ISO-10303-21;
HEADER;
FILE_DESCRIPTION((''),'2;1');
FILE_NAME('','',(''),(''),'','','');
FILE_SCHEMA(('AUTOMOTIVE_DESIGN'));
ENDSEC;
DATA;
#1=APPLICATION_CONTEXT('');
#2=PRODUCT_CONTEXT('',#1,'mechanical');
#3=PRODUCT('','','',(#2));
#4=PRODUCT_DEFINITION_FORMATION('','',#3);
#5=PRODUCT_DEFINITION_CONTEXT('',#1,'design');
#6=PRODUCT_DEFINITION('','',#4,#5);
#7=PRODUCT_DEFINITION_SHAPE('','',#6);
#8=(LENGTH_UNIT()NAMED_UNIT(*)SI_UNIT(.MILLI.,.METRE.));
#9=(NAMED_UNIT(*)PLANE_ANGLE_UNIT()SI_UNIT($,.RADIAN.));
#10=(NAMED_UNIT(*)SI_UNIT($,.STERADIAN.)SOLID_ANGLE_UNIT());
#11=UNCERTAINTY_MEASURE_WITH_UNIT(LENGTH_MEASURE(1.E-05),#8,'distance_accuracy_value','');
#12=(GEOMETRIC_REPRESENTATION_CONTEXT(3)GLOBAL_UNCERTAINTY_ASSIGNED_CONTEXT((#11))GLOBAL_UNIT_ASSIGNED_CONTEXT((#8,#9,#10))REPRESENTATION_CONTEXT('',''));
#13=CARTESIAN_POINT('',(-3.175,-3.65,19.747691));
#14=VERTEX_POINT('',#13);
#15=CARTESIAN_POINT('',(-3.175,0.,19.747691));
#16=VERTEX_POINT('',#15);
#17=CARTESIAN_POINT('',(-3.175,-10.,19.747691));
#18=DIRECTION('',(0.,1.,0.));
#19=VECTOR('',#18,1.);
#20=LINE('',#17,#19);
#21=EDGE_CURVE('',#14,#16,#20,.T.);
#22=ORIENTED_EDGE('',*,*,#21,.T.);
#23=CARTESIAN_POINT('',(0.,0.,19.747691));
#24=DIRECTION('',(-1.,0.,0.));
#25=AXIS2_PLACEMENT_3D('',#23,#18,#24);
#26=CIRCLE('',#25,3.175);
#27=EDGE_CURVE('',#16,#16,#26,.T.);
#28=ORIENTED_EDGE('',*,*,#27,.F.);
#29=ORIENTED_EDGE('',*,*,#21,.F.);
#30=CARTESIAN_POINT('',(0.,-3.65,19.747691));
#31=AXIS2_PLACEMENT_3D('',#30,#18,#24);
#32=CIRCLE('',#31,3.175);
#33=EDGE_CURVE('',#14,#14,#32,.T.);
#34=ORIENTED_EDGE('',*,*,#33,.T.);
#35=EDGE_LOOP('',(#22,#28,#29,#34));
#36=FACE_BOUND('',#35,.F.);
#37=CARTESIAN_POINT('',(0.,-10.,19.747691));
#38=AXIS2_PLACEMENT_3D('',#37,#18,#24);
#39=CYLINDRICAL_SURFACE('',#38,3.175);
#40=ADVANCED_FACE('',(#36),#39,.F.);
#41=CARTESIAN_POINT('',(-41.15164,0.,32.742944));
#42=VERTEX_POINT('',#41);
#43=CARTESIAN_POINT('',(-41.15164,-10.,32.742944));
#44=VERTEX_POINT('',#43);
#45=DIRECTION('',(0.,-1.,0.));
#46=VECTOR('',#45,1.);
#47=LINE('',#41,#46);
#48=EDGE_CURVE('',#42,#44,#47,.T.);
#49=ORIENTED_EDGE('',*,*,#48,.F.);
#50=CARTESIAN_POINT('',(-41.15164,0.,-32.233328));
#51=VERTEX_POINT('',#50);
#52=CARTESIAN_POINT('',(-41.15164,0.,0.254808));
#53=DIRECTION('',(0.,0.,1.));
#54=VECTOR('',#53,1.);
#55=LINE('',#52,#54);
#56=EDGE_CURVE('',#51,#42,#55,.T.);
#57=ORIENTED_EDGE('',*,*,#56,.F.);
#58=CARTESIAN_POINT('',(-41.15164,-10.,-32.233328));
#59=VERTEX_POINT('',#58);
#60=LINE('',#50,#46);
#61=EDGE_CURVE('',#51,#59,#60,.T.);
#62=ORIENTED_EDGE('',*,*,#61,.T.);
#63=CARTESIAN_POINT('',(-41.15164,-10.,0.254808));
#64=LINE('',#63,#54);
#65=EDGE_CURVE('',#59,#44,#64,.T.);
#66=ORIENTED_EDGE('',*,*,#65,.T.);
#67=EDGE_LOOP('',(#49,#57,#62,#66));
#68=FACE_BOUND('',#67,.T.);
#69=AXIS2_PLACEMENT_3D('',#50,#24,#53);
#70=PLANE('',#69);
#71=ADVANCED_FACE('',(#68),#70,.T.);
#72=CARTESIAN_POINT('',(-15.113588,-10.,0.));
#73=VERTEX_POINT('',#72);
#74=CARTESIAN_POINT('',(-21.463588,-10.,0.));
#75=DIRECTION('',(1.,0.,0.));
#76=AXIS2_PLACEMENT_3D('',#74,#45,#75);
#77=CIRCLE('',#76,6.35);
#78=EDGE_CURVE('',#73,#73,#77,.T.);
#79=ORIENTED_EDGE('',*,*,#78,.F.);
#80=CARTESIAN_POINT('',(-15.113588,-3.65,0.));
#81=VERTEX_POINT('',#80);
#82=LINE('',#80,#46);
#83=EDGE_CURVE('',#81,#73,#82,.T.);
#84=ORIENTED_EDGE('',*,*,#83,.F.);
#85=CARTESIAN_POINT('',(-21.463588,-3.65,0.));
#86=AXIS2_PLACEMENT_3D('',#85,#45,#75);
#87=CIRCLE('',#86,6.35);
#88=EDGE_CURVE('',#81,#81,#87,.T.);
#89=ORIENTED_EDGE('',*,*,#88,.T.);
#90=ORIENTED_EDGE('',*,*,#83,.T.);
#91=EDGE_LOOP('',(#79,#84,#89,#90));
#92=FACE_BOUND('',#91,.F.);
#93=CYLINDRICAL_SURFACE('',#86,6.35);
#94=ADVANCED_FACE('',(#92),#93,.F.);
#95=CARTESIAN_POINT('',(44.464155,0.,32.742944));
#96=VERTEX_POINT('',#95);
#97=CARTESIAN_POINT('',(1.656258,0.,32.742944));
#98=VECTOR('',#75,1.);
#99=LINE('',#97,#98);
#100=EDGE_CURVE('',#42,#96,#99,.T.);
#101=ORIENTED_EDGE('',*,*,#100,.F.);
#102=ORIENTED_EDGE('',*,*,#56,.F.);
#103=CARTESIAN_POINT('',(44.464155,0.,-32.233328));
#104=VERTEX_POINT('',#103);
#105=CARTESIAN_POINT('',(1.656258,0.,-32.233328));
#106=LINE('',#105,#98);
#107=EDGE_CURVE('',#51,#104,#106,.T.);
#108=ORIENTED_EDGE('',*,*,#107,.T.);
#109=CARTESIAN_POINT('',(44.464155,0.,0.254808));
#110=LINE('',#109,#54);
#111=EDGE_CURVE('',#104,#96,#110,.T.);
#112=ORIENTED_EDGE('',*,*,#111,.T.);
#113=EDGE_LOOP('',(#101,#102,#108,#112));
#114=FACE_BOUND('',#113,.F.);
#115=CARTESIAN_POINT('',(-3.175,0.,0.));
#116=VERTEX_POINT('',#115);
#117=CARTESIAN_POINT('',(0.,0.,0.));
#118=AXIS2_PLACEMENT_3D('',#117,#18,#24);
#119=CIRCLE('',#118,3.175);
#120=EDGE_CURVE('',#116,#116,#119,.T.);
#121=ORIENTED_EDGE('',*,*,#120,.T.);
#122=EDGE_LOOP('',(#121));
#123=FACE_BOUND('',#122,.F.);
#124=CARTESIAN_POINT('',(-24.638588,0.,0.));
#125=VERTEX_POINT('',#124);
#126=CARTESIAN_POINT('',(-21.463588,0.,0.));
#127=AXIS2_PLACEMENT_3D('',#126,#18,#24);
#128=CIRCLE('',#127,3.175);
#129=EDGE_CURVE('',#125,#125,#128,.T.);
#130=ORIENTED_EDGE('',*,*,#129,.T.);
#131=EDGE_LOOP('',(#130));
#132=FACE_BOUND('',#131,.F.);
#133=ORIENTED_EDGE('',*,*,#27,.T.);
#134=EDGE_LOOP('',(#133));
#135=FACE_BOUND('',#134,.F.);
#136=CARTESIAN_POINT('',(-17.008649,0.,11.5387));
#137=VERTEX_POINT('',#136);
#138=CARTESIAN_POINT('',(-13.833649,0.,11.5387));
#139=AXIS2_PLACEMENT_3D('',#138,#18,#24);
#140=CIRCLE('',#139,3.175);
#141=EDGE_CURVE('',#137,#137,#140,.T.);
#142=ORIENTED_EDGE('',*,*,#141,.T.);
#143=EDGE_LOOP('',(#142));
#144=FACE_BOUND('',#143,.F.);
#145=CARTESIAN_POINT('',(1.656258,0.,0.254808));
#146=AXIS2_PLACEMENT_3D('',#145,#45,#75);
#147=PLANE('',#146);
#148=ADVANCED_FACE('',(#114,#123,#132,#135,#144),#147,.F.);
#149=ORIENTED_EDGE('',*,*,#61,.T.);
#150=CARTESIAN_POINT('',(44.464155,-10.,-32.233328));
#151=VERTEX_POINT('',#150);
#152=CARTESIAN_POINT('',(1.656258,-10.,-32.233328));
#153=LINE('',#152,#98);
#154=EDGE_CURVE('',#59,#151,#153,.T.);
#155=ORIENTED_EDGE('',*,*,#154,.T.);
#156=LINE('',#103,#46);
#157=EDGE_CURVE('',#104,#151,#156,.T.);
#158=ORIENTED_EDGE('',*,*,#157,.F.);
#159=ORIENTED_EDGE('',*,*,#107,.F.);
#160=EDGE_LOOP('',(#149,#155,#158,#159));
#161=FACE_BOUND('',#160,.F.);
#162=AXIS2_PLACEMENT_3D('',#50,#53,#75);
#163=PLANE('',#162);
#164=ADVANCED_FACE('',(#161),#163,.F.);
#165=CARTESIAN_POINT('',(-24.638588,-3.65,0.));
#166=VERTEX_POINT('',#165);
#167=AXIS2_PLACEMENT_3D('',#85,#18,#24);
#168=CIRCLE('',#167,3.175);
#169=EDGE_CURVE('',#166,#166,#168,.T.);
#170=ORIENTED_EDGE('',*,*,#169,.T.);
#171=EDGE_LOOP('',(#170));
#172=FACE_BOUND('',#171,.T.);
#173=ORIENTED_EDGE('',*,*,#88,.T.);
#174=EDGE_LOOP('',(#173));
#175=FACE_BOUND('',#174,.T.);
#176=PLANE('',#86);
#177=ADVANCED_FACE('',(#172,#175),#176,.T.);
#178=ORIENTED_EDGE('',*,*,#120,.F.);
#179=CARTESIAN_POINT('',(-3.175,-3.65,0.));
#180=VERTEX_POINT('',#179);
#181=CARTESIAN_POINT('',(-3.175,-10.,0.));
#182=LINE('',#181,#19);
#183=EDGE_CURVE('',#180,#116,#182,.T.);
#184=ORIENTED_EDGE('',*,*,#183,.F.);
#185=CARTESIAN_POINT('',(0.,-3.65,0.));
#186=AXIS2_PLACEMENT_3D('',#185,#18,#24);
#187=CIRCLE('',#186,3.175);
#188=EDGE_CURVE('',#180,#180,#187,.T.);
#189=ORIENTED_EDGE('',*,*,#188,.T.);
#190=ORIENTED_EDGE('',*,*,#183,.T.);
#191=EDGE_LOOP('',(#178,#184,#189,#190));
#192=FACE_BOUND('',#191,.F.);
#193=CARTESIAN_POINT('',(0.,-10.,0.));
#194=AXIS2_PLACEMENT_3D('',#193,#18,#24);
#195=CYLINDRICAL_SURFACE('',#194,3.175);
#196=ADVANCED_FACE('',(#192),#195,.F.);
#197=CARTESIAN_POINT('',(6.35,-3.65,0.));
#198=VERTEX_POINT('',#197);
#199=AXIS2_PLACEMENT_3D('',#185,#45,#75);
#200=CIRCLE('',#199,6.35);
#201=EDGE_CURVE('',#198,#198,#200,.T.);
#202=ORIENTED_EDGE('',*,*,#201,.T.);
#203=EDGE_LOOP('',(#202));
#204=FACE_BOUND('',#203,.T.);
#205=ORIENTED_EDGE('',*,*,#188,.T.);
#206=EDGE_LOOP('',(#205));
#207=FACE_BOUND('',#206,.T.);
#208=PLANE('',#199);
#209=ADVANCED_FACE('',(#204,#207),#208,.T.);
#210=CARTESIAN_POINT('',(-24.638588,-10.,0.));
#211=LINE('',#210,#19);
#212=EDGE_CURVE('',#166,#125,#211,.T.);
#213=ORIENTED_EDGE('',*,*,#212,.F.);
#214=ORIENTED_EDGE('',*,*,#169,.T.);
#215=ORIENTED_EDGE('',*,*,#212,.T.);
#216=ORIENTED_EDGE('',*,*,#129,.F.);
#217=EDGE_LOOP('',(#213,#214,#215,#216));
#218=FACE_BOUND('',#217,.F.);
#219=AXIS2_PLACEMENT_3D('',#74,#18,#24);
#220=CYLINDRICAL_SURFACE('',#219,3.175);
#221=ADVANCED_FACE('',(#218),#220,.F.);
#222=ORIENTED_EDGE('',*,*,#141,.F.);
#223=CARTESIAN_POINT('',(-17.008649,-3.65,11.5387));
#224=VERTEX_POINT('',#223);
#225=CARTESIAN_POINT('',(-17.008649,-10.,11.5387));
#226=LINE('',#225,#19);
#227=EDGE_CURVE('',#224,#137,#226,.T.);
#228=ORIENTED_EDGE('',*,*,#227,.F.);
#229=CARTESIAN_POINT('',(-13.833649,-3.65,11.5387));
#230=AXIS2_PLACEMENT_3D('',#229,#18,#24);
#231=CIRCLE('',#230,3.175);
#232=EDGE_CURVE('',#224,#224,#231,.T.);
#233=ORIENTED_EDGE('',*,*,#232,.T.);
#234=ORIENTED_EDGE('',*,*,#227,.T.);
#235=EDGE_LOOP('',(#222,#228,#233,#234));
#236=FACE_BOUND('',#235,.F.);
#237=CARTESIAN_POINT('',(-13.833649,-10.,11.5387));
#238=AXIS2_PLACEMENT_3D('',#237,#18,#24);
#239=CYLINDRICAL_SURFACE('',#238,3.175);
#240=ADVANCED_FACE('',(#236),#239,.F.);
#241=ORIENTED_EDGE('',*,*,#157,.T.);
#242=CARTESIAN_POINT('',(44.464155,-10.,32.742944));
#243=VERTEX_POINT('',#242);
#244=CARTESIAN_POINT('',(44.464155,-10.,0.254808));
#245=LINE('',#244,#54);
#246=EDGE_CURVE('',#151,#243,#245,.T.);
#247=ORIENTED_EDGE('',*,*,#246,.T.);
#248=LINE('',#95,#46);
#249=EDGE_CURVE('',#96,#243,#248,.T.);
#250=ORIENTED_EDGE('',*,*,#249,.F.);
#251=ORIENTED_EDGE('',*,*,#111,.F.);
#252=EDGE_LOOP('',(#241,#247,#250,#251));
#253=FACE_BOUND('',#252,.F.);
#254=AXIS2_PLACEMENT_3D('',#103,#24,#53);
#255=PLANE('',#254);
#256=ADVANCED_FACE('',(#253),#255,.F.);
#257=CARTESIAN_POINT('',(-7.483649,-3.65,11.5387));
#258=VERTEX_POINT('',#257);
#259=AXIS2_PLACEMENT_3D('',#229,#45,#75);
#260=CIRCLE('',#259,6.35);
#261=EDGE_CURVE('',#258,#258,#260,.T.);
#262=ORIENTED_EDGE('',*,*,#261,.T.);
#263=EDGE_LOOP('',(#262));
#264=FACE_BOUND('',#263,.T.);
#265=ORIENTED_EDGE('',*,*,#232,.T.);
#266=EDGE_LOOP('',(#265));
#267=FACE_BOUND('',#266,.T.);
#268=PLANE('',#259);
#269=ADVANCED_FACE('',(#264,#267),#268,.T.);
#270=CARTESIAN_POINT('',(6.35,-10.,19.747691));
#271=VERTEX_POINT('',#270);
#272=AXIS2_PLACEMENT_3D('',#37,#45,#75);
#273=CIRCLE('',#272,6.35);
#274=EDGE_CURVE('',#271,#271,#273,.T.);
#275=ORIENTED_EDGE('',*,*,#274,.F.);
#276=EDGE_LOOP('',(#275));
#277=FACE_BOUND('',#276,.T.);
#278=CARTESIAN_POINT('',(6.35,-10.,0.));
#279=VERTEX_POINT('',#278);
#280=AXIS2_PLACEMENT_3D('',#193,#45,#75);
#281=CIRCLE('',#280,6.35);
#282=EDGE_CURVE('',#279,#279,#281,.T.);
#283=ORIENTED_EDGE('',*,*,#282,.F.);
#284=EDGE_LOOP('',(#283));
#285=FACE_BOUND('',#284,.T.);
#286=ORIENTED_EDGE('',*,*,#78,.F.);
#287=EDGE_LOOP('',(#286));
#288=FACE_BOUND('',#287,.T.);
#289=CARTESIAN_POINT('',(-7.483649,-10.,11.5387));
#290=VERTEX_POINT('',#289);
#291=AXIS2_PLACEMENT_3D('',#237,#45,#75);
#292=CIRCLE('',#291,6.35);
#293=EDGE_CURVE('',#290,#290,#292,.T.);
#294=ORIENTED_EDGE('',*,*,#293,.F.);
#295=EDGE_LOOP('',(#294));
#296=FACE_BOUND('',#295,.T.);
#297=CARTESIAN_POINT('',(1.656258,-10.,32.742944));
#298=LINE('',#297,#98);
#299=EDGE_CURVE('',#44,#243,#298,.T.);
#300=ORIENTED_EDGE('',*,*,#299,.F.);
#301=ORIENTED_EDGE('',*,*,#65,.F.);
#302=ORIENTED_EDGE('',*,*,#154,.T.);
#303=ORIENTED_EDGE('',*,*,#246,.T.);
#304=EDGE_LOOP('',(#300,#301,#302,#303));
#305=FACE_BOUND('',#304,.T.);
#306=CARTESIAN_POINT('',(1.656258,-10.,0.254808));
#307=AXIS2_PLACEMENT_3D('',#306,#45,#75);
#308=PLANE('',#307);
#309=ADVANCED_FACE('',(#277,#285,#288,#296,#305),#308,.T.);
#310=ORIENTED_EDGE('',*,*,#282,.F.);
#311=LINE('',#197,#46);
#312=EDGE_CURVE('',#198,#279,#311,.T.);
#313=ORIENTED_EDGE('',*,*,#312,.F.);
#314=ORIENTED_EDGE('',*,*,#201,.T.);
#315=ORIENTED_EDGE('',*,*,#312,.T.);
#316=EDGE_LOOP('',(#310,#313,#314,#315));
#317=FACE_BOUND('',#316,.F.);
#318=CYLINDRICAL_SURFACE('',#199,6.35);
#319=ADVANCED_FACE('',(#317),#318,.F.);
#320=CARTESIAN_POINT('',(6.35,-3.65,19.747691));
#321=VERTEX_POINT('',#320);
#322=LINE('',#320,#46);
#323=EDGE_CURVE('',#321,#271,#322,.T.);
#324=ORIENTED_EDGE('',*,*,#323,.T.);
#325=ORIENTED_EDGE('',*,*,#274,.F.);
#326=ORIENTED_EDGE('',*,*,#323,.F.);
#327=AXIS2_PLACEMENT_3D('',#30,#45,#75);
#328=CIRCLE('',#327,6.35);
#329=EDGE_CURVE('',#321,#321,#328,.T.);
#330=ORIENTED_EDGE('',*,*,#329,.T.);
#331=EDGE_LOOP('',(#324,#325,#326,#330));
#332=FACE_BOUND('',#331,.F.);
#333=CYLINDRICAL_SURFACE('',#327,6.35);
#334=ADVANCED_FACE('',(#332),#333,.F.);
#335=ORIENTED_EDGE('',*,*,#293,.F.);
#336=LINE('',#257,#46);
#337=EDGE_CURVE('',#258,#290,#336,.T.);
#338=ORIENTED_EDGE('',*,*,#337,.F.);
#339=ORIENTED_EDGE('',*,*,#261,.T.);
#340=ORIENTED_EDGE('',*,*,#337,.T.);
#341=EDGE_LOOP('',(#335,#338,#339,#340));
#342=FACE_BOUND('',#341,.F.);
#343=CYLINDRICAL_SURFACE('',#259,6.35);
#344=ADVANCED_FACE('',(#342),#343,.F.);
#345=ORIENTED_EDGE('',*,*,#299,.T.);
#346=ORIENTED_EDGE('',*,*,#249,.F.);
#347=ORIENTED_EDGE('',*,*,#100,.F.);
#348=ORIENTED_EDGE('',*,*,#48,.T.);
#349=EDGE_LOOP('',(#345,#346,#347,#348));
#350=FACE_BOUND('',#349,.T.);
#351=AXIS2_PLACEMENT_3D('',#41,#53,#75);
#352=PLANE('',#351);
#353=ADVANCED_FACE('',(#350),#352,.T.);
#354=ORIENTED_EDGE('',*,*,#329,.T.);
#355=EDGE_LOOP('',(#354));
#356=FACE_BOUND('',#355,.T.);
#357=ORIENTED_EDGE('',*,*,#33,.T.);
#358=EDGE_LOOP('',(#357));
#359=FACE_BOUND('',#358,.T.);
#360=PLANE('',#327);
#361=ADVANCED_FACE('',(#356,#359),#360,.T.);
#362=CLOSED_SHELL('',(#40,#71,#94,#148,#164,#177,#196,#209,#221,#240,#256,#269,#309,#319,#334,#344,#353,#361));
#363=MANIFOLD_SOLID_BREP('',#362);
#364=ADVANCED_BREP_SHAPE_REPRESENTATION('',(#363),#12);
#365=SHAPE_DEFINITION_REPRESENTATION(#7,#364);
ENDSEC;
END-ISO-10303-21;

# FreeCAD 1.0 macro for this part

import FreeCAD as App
import Part
import Sketcher

V = App.Vector

doc = App.newDocument("Part")
body = doc.addObject("PartDesign::Body", "Body")

# Sketch on XZ plane
sketch1 = body.newObject("Sketcher::SketchObject", "Sketch")
sketch1.AttachmentSupport = (doc.getObject("XZ_Plane"), [""])
sketch1.MapMode = "FlatFace"
sketch1.addGeometry([
    Part.LineSegment(V(-41.15164, 32.742944, 0), V(-41.15164, -32.233328, 0)),
    Part.LineSegment(V(-41.15164, -32.233328, 0), V(44.464155, -32.233328, 0)),
    Part.LineSegment(V(44.464155, -32.233328, 0), V(44.464155, 32.742944, 0)),
    Part.LineSegment(V(44.464155, 32.742944, 0), V(-41.15164, 32.742944, 0)),
], False)
sketch1.addConstraint([
    Sketcher.Constraint("Coincident", 0, 2, 1, 1),
    Sketcher.Constraint("Coincident", 1, 2, 2, 1),
    Sketcher.Constraint("Coincident", 2, 2, 3, 1),
    Sketcher.Constraint("Coincident", 3, 2, 0, 1),
    Sketcher.Constraint("Vertical", 0),
    Sketcher.Constraint("Horizontal", 1),
    Sketcher.Constraint("Vertical", 2),
    Sketcher.Constraint("Horizontal", 3),
    Sketcher.Constraint("DistanceY", 0, 2, 0, 1, 64.976272),
    Sketcher.Constraint("DistanceX", 1, 1, 1, 2, 85.615795),
    Sketcher.Constraint("DistanceX", 0, 2, -1, 1, 41.15164),
    Sketcher.Constraint("DistanceY", 0, 2, -1, 1, 32.233328),
])
pad1 = body.newObject("PartDesign::Pad", "Pad")
pad1.Profile = sketch1
pad1.Length = 10

# Sketch on XZ plane
sketch2 = body.newObject("Sketcher::SketchObject", "Sketch001")
sketch2.AttachmentSupport = (doc.getObject("XZ_Plane"), [""])
sketch2.MapMode = "FlatFace"
sketch2.AttachmentOffset = App.Placement(V(0, 0, 10), App.Rotation())
sketch2.addGeometry([
    Part.Circle(V(0, 0, 0), V(0, 0, 1), 3.175),
    Part.Circle(V(-21.463588, 0, 0), V(0, 0, 1), 3.175),
    Part.Circle(V(-13.833649, 11.5387, 0), V(0, 0, 1), 3.175),
    Part.Circle(V(0, 19.747691, 0), V(0, 0, 1), 3.175),
], False)
sketch2.addConstraint([
    Sketcher.Constraint("Coincident", 0, 3, -1, 1),
    Sketcher.Constraint("Equal", 0, 1),
    Sketcher.Constraint("Equal", 1, 2),
    Sketcher.Constraint("Equal", 2, 3),
    Sketcher.Constraint("PointOnObject", 1, 3, -1),
    Sketcher.Constraint("PointOnObject", 3, 3, -2),
    Sketcher.Constraint("Diameter", 0, 6.35),
    Sketcher.Constraint("DistanceY", -1, 1, 2, 3, 11.5387),
    Sketcher.Constraint("DistanceX", 1, 3, -1, 1, 21.463588),
    Sketcher.Constraint("DistanceX", 2, 3, -1, 1, 13.833649),
    Sketcher.Constraint("DistanceY", -1, 1, 3, 3, 19.747691),
])
doc.recompute()
hole = body.newObject("PartDesign::Hole", "Hole")
hole.Profile = sketch2
hole.ThreadType = "None"
hole.Diameter = 6.35
hole.DepthType = "ThroughAll"
hole.HoleCutType = "Counterbore"
hole.HoleCutDiameter = 12.7
hole.HoleCutDepth = 6.35

doc.recompute()
